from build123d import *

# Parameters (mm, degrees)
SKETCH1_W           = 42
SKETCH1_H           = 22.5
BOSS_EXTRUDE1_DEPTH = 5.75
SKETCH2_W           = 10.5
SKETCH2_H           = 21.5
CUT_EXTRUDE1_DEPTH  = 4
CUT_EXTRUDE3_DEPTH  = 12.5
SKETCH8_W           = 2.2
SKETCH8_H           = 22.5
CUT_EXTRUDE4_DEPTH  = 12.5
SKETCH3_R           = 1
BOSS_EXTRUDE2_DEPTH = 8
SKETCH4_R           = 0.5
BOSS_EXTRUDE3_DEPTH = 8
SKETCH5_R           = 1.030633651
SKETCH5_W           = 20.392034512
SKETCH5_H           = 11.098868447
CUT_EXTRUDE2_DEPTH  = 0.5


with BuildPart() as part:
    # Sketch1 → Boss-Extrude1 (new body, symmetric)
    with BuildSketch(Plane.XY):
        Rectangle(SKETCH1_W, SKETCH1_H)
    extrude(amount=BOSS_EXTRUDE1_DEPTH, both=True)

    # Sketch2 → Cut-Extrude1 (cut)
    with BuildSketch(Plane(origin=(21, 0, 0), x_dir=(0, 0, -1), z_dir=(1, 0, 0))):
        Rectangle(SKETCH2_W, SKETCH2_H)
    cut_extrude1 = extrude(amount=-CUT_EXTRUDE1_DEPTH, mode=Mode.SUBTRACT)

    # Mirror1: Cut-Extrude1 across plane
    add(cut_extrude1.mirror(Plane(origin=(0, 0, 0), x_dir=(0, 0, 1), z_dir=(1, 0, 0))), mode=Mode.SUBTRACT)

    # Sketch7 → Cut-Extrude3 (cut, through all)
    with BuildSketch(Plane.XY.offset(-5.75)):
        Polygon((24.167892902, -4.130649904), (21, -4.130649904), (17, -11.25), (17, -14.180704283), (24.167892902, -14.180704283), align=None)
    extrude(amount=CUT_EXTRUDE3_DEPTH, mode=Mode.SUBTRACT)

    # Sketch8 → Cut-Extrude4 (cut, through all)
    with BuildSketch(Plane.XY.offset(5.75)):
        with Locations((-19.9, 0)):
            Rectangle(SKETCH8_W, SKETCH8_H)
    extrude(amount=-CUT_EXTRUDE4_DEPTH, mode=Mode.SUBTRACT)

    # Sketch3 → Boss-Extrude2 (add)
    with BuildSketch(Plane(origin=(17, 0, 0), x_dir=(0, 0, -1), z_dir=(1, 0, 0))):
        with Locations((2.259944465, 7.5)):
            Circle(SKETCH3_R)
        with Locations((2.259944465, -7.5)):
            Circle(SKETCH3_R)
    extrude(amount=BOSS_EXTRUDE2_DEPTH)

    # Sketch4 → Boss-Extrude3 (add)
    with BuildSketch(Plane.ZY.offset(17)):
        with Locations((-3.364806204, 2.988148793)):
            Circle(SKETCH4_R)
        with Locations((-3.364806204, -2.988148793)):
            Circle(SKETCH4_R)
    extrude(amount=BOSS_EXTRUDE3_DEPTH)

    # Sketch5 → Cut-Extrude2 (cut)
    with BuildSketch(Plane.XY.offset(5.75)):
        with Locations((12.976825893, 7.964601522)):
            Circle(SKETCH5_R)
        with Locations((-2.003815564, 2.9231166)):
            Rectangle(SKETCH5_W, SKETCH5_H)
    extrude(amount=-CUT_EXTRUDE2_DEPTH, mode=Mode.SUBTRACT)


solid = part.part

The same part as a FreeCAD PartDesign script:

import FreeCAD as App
import Part
import Sketcher

V = App.Vector
Q = App.Units.Quantity

doc = App.newDocument("Part")
body = doc.addObject("PartDesign::Body", "Body")

# Sketch on XY plane
sketch1 = body.newObject("Sketcher::SketchObject", "Sketch")
sketch1.AttachmentSupport = (doc.getObject("XY_Plane"), [""])
sketch1.MapMode = "FlatFace"
sketch1.addGeometry([
    Part.LineSegment(V(-21, 11, 0), V(-21, -11, 0)),
    Part.LineSegment(V(-21, -11, 0), V(21, -11, 0)),
    Part.LineSegment(V(21, -11, 0), V(21, 11, 0)),
    Part.LineSegment(V(21, 11, 0), V(-21, 11, 0)),
], False)
sketch1.addConstraint([
    Sketcher.Constraint("Coincident", 0, 2, 1, 1),
    Sketcher.Constraint("Coincident", 1, 2, 2, 1),
    Sketcher.Constraint("Coincident", 2, 2, 3, 1),
    Sketcher.Constraint("Coincident", 3, 2, 0, 1),
    Sketcher.Constraint("Vertical", 0),
    Sketcher.Constraint("Horizontal", 1),
    Sketcher.Constraint("Vertical", 2),
    Sketcher.Constraint("Horizontal", 3),
    Sketcher.Constraint("Symmetric", 0, 2, 2, 2, -1, 1),
    Sketcher.Constraint("DistanceX", 1, 1, 1, 2, Q("42 mm")),
    Sketcher.Constraint("DistanceY", 0, 2, 0, 1, Q("22.5 mm")),
])
pad1 = body.newObject("PartDesign::Pad", "Pad")
pad1.Profile = sketch1
pad1.Length = 11.5
pad1.Midplane = True

# Sketch on YZ plane
sketch2 = body.newObject("Sketcher::SketchObject", "Sketch001")
sketch2.AttachmentSupport = (doc.getObject("YZ_Plane"), [""])
sketch2.MapMode = "FlatFace"
sketch2.AttachmentOffset = App.Placement(V(0, 0, 21), App.Rotation())
sketch2.addGeometry([
    Part.LineSegment(V(11, 5, 0), V(-11, 5, 0)),
    Part.LineSegment(V(-11, 5, 0), V(-11, -5, 0)),
    Part.LineSegment(V(-11, -5, 0), V(11, -5, 0)),
    Part.LineSegment(V(11, -5, 0), V(11, 5, 0)),
], False)
sketch2.addConstraint([
    Sketcher.Constraint("Coincident", 0, 2, 1, 1),
    Sketcher.Constraint("Coincident", 1, 2, 2, 1),
    Sketcher.Constraint("Coincident", 2, 2, 3, 1),
    Sketcher.Constraint("Coincident", 3, 2, 0, 1),
    Sketcher.Constraint("Horizontal", 0),
    Sketcher.Constraint("Vertical", 1),
    Sketcher.Constraint("Horizontal", 2),
    Sketcher.Constraint("Vertical", 3),
    Sketcher.Constraint("Symmetric", 0, 2, 2, 2, -1, 1),
    Sketcher.Constraint("DistanceX", 0, 2, 0, 1, Q("21.5 mm")),
    Sketcher.Constraint("DistanceY", 1, 2, 1, 1, Q("10.5 mm")),
])
pocket1 = body.newObject("PartDesign::Pocket", "Pocket")
pocket1.Profile = sketch2
pocket1.Length = 4
doc.recompute()

mirrored = body.newObject("PartDesign::Mirrored", "Mirrored")
mirrored.Originals = [pocket1]
mirrored.MirrorPlane = (doc.getObject("YZ_Plane"), [""])
body.Tip = mirrored

# Sketch on XY plane
sketch3 = body.newObject("Sketcher::SketchObject", "Sketch002")
sketch3.AttachmentSupport = (doc.getObject("XY_Plane"), [""])
sketch3.MapMode = "FlatFace"
sketch3.AttachmentOffset = App.Placement(V(0, 0, -5.75), App.Rotation())
sketch3.addGeometry([
    Part.LineSegment(V(24.2, -4.1, 0), V(21, -4.1, 0)),  # 0
    Part.LineSegment(V(21, -4.1, 0), V(17, -11.2, 0)),  # 1
    Part.LineSegment(V(17, -11.2, 0), V(17, -14.2, 0)),  # 2
    Part.LineSegment(V(17, -14.2, 0), V(24.2, -14.2, 0)),  # 3
    Part.LineSegment(V(24.2, -14.2, 0), V(24.2, -4.1, 0)),  # 4
], False)
sketch3.addConstraint([
    Sketcher.Constraint("Coincident", 0, 2, 1, 1),
    Sketcher.Constraint("Coincident", 1, 2, 2, 1),
    Sketcher.Constraint("Coincident", 2, 2, 3, 1),
    Sketcher.Constraint("Coincident", 3, 2, 4, 1),
    Sketcher.Constraint("Coincident", 4, 2, 0, 1),
    Sketcher.Constraint("Horizontal", 0),
    Sketcher.Constraint("Vertical", 2),
    Sketcher.Constraint("Horizontal", 3),
    Sketcher.Constraint("Vertical", 4),
    Sketcher.Constraint("DistanceX", -1, 1, 0, 2, Q("21 mm")),
    Sketcher.Constraint("DistanceX", -1, 1, 1, 2, Q("17 mm")),
    Sketcher.Constraint("DistanceY", 1, 2, -1, 1, Q("11.25 mm")),
    Sketcher.Constraint("DistanceX", 0, 2, 0, 1, Q("3.167893 mm")),
    Sketcher.Constraint("DistanceY", 2, 2, 2, 1, Q("2.930704 mm")),
    Sketcher.Constraint("DistanceY", 4, 1, 4, 2, Q("10.050054 mm")),
])
pocket2 = body.newObject("PartDesign::Pocket", "Pocket001")
pocket2.Profile = sketch3
pocket2.Type = "ThroughAll"
pocket2.Reversed = True

# Sketch on XY plane
sketch4 = body.newObject("Sketcher::SketchObject", "Sketch003")
sketch4.AttachmentSupport = (doc.getObject("XY_Plane"), [""])
sketch4.MapMode = "FlatFace"
sketch4.AttachmentOffset = App.Placement(V(0, 0, 5.75), App.Rotation())
sketch4.addGeometry([
    Part.LineSegment(V(-21, 11.2, 0), V(-21, -11.2, 0)),
    Part.LineSegment(V(-21, -11.2, 0), V(-18.8, -11.2, 0)),
    Part.LineSegment(V(-18.8, -11.2, 0), V(-18.8, 11.2, 0)),
    Part.LineSegment(V(-18.8, 11.2, 0), V(-21, 11.2, 0)),
], False)
sketch4.addConstraint([
    Sketcher.Constraint("Coincident", 0, 2, 1, 1),
    Sketcher.Constraint("Coincident", 1, 2, 2, 1),
    Sketcher.Constraint("Coincident", 2, 2, 3, 1),
    Sketcher.Constraint("Coincident", 3, 2, 0, 1),
    Sketcher.Constraint("Vertical", 0),
    Sketcher.Constraint("Horizontal", 1),
    Sketcher.Constraint("Vertical", 2),
    Sketcher.Constraint("Horizontal", 3),
    Sketcher.Constraint("DistanceX", 1, 1, 1, 2, Q("2.2 mm")),
    Sketcher.Constraint("DistanceY", 0, 2, 0, 1, Q("22.5 mm")),
    Sketcher.Constraint("DistanceX", 0, 2, -1, 1, Q("21 mm")),
    Sketcher.Constraint("DistanceY", 0, 2, -1, 1, Q("11.25 mm")),
])
pocket3 = body.newObject("PartDesign::Pocket", "Pocket002")
pocket3.Profile = sketch4
pocket3.Type = "ThroughAll"

# Sketch on YZ plane
sketch5 = body.newObject("Sketcher::SketchObject", "Sketch004")
sketch5.AttachmentSupport = (doc.getObject("YZ_Plane"), [""])
sketch5.MapMode = "FlatFace"
sketch5.AttachmentOffset = App.Placement(V(0, 0, 17), App.Rotation())
sketch5.addGeometry([
    Part.Circle(V(7.5, -2.3, 0), V(0, 0, 1), 1),
    Part.Circle(V(-7.5, -2.3, 0), V(0, 0, 1), 1),
], False)
sketch5.addConstraint([
    Sketcher.Constraint("Equal", 0, 1),
    Sketcher.Constraint("Symmetric", 0, 3, 1, 3, -2),
    Sketcher.Constraint("Diameter", 0, Q("2 mm")),
    Sketcher.Constraint("DistanceX", 1, 3, 0, 3, Q("15 mm")),
    Sketcher.Constraint("DistanceY", 0, 3, -1, 1, Q("2.259944 mm")),
])
pad2 = body.newObject("PartDesign::Pad", "Pad001")
pad2.Profile = sketch5
pad2.Length = 8

# Sketch on YZ plane
sketch6 = body.newObject("Sketcher::SketchObject", "Sketch005")
sketch6.AttachmentSupport = (doc.getObject("YZ_Plane"), [""])
sketch6.MapMode = "FlatFace"
sketch6.AttachmentOffset = App.Placement(V(0, 0, -17), App.Rotation())
sketch6.addGeometry([
    Part.Circle(V(3, -3.4, 0), V(0, 0, 1), 0.5),
    Part.Circle(V(-3, -3.4, 0), V(0, 0, 1), 0.5),
], False)
sketch6.addConstraint([
    Sketcher.Constraint("Equal", 0, 1),
    Sketcher.Constraint("Symmetric", 0, 3, 1, 3, -2),
    Sketcher.Constraint("Diameter", 0, Q("1 mm")),
    Sketcher.Constraint("DistanceX", -1, 1, 0, 3, Q("2.988149 mm")),
    Sketcher.Constraint("DistanceY", 0, 3, -1, 1, Q("3.364806 mm")),
])
pad3 = body.newObject("PartDesign::Pad", "Pad002")
pad3.Profile = sketch6
pad3.Length = 8
pad3.Reversed = True

# Sketch on XY plane
sketch7 = body.newObject("Sketcher::SketchObject", "Sketch006")
sketch7.AttachmentSupport = (doc.getObject("XY_Plane"), [""])
sketch7.MapMode = "FlatFace"
sketch7.AttachmentOffset = App.Placement(V(0, 0, 5.75), App.Rotation())
sketch7.addGeometry([
    Part.Circle(V(13, 8, 0), V(0, 0, 1), 1),  # 0
    Part.LineSegment(V(-12.2, 8.5, 0), V(-12.2, -2.6, 0)),  # 1
    Part.LineSegment(V(-12.2, -2.6, 0), V(8.2, -2.6, 0)),  # 2
    Part.LineSegment(V(8.2, -2.6, 0), V(8.2, 8.5, 0)),  # 3
    Part.LineSegment(V(8.2, 8.5, 0), V(-12.2, 8.5, 0)),  # 4
], False)
sketch7.addConstraint([
    Sketcher.Constraint("Coincident", 1, 2, 2, 1),
    Sketcher.Constraint("Coincident", 2, 2, 3, 1),
    Sketcher.Constraint("Coincident", 3, 2, 4, 1),
    Sketcher.Constraint("Coincident", 4, 2, 1, 1),
    Sketcher.Constraint("Vertical", 1),
    Sketcher.Constraint("Horizontal", 2),
    Sketcher.Constraint("Vertical", 3),
    Sketcher.Constraint("Horizontal", 4),
    Sketcher.Constraint("Diameter", 0, Q("2.061267 mm")),
    Sketcher.Constraint("DistanceY", 1, 2, 1, 1, Q("11.098868 mm")),
    Sketcher.Constraint("DistanceY", -1, 1, 0, 3, Q("7.964602 mm")),
    Sketcher.Constraint("DistanceX", -1, 1, 2, 2, Q("8.192202 mm")),
    Sketcher.Constraint("DistanceX", 2, 1, 2, 2, Q("20.392035 mm")),
    Sketcher.Constraint("DistanceY", -1, 1, 3, 2, Q("8.472551 mm")),
    Sketcher.Constraint("DistanceX", 1, 2, 0, 3, Q("25.176659 mm")),
])
pocket4 = body.newObject("PartDesign::Pocket", "Pocket003")
pocket4.Profile = sketch7
pocket4.Length = 0.5

doc.recompute()
